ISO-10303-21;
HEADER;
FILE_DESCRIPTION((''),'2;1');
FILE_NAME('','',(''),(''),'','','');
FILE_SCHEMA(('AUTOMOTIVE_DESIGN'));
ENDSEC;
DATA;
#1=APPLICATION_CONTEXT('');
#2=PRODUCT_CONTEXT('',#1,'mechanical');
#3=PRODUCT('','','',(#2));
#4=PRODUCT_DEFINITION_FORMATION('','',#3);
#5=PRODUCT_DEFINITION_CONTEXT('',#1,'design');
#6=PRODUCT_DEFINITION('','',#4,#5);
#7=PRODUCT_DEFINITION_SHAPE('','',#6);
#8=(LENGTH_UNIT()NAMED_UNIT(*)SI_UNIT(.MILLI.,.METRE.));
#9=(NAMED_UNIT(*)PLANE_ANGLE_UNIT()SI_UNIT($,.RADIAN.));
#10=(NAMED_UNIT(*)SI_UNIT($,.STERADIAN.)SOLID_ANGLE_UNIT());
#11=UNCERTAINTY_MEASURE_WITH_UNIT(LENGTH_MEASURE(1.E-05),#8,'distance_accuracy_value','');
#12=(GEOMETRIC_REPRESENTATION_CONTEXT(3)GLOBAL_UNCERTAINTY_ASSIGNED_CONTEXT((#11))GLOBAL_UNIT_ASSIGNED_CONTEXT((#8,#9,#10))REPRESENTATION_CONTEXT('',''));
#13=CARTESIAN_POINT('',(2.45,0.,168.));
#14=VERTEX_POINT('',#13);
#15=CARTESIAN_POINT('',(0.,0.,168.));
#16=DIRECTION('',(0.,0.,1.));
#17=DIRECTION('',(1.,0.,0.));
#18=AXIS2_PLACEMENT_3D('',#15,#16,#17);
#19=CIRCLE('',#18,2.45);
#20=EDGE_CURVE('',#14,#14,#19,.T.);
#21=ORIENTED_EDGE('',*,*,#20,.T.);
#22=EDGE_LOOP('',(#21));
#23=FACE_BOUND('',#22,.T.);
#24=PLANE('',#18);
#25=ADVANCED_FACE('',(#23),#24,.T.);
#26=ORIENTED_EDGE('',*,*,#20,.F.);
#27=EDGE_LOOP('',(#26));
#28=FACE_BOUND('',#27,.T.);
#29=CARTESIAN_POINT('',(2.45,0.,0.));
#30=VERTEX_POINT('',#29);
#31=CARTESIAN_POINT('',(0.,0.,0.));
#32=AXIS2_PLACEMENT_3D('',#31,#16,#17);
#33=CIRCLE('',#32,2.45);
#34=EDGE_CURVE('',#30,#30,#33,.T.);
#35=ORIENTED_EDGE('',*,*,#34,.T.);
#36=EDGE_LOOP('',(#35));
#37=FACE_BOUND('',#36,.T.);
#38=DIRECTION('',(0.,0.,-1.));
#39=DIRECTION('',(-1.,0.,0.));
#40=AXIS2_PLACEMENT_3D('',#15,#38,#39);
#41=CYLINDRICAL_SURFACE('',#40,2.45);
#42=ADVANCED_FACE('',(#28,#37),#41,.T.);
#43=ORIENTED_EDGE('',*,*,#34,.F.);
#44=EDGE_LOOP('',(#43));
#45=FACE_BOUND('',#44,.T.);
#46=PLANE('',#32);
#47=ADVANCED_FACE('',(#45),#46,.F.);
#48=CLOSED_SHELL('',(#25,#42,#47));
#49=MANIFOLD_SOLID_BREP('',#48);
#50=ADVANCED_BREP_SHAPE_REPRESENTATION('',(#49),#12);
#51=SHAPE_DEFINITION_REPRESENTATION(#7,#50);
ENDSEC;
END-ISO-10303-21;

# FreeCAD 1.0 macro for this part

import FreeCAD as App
import Part
import Sketcher

V = App.Vector
Q = App.Units.Quantity

doc = App.newDocument("Part")
body = doc.addObject("PartDesign::Body", "Body")

# Sketch on XY plane
sketch1 = doc.addObject("Sketcher::SketchObject", "Sketch")
body.addObject(sketch1)
sketch1.AttachmentSupport = (doc.XY_Plane, [""])
sketch1.MapMode = "FlatFace"
sketch1.addGeometry(Part.Circle(V(0, 0, 0), V(0, 0, 1), 2.45), False)
sketch1.addConstraint([
    Sketcher.Constraint("Coincident", 0, 3, -1, 1),
    Sketcher.Constraint("Diameter", 0, Q("4.9 mm")),
])
pad1 = doc.addObject("PartDesign::Pad", "Pad")
body.addObject(pad1)
pad1.Profile = sketch1
pad1.Length = 168

doc.recompute()
